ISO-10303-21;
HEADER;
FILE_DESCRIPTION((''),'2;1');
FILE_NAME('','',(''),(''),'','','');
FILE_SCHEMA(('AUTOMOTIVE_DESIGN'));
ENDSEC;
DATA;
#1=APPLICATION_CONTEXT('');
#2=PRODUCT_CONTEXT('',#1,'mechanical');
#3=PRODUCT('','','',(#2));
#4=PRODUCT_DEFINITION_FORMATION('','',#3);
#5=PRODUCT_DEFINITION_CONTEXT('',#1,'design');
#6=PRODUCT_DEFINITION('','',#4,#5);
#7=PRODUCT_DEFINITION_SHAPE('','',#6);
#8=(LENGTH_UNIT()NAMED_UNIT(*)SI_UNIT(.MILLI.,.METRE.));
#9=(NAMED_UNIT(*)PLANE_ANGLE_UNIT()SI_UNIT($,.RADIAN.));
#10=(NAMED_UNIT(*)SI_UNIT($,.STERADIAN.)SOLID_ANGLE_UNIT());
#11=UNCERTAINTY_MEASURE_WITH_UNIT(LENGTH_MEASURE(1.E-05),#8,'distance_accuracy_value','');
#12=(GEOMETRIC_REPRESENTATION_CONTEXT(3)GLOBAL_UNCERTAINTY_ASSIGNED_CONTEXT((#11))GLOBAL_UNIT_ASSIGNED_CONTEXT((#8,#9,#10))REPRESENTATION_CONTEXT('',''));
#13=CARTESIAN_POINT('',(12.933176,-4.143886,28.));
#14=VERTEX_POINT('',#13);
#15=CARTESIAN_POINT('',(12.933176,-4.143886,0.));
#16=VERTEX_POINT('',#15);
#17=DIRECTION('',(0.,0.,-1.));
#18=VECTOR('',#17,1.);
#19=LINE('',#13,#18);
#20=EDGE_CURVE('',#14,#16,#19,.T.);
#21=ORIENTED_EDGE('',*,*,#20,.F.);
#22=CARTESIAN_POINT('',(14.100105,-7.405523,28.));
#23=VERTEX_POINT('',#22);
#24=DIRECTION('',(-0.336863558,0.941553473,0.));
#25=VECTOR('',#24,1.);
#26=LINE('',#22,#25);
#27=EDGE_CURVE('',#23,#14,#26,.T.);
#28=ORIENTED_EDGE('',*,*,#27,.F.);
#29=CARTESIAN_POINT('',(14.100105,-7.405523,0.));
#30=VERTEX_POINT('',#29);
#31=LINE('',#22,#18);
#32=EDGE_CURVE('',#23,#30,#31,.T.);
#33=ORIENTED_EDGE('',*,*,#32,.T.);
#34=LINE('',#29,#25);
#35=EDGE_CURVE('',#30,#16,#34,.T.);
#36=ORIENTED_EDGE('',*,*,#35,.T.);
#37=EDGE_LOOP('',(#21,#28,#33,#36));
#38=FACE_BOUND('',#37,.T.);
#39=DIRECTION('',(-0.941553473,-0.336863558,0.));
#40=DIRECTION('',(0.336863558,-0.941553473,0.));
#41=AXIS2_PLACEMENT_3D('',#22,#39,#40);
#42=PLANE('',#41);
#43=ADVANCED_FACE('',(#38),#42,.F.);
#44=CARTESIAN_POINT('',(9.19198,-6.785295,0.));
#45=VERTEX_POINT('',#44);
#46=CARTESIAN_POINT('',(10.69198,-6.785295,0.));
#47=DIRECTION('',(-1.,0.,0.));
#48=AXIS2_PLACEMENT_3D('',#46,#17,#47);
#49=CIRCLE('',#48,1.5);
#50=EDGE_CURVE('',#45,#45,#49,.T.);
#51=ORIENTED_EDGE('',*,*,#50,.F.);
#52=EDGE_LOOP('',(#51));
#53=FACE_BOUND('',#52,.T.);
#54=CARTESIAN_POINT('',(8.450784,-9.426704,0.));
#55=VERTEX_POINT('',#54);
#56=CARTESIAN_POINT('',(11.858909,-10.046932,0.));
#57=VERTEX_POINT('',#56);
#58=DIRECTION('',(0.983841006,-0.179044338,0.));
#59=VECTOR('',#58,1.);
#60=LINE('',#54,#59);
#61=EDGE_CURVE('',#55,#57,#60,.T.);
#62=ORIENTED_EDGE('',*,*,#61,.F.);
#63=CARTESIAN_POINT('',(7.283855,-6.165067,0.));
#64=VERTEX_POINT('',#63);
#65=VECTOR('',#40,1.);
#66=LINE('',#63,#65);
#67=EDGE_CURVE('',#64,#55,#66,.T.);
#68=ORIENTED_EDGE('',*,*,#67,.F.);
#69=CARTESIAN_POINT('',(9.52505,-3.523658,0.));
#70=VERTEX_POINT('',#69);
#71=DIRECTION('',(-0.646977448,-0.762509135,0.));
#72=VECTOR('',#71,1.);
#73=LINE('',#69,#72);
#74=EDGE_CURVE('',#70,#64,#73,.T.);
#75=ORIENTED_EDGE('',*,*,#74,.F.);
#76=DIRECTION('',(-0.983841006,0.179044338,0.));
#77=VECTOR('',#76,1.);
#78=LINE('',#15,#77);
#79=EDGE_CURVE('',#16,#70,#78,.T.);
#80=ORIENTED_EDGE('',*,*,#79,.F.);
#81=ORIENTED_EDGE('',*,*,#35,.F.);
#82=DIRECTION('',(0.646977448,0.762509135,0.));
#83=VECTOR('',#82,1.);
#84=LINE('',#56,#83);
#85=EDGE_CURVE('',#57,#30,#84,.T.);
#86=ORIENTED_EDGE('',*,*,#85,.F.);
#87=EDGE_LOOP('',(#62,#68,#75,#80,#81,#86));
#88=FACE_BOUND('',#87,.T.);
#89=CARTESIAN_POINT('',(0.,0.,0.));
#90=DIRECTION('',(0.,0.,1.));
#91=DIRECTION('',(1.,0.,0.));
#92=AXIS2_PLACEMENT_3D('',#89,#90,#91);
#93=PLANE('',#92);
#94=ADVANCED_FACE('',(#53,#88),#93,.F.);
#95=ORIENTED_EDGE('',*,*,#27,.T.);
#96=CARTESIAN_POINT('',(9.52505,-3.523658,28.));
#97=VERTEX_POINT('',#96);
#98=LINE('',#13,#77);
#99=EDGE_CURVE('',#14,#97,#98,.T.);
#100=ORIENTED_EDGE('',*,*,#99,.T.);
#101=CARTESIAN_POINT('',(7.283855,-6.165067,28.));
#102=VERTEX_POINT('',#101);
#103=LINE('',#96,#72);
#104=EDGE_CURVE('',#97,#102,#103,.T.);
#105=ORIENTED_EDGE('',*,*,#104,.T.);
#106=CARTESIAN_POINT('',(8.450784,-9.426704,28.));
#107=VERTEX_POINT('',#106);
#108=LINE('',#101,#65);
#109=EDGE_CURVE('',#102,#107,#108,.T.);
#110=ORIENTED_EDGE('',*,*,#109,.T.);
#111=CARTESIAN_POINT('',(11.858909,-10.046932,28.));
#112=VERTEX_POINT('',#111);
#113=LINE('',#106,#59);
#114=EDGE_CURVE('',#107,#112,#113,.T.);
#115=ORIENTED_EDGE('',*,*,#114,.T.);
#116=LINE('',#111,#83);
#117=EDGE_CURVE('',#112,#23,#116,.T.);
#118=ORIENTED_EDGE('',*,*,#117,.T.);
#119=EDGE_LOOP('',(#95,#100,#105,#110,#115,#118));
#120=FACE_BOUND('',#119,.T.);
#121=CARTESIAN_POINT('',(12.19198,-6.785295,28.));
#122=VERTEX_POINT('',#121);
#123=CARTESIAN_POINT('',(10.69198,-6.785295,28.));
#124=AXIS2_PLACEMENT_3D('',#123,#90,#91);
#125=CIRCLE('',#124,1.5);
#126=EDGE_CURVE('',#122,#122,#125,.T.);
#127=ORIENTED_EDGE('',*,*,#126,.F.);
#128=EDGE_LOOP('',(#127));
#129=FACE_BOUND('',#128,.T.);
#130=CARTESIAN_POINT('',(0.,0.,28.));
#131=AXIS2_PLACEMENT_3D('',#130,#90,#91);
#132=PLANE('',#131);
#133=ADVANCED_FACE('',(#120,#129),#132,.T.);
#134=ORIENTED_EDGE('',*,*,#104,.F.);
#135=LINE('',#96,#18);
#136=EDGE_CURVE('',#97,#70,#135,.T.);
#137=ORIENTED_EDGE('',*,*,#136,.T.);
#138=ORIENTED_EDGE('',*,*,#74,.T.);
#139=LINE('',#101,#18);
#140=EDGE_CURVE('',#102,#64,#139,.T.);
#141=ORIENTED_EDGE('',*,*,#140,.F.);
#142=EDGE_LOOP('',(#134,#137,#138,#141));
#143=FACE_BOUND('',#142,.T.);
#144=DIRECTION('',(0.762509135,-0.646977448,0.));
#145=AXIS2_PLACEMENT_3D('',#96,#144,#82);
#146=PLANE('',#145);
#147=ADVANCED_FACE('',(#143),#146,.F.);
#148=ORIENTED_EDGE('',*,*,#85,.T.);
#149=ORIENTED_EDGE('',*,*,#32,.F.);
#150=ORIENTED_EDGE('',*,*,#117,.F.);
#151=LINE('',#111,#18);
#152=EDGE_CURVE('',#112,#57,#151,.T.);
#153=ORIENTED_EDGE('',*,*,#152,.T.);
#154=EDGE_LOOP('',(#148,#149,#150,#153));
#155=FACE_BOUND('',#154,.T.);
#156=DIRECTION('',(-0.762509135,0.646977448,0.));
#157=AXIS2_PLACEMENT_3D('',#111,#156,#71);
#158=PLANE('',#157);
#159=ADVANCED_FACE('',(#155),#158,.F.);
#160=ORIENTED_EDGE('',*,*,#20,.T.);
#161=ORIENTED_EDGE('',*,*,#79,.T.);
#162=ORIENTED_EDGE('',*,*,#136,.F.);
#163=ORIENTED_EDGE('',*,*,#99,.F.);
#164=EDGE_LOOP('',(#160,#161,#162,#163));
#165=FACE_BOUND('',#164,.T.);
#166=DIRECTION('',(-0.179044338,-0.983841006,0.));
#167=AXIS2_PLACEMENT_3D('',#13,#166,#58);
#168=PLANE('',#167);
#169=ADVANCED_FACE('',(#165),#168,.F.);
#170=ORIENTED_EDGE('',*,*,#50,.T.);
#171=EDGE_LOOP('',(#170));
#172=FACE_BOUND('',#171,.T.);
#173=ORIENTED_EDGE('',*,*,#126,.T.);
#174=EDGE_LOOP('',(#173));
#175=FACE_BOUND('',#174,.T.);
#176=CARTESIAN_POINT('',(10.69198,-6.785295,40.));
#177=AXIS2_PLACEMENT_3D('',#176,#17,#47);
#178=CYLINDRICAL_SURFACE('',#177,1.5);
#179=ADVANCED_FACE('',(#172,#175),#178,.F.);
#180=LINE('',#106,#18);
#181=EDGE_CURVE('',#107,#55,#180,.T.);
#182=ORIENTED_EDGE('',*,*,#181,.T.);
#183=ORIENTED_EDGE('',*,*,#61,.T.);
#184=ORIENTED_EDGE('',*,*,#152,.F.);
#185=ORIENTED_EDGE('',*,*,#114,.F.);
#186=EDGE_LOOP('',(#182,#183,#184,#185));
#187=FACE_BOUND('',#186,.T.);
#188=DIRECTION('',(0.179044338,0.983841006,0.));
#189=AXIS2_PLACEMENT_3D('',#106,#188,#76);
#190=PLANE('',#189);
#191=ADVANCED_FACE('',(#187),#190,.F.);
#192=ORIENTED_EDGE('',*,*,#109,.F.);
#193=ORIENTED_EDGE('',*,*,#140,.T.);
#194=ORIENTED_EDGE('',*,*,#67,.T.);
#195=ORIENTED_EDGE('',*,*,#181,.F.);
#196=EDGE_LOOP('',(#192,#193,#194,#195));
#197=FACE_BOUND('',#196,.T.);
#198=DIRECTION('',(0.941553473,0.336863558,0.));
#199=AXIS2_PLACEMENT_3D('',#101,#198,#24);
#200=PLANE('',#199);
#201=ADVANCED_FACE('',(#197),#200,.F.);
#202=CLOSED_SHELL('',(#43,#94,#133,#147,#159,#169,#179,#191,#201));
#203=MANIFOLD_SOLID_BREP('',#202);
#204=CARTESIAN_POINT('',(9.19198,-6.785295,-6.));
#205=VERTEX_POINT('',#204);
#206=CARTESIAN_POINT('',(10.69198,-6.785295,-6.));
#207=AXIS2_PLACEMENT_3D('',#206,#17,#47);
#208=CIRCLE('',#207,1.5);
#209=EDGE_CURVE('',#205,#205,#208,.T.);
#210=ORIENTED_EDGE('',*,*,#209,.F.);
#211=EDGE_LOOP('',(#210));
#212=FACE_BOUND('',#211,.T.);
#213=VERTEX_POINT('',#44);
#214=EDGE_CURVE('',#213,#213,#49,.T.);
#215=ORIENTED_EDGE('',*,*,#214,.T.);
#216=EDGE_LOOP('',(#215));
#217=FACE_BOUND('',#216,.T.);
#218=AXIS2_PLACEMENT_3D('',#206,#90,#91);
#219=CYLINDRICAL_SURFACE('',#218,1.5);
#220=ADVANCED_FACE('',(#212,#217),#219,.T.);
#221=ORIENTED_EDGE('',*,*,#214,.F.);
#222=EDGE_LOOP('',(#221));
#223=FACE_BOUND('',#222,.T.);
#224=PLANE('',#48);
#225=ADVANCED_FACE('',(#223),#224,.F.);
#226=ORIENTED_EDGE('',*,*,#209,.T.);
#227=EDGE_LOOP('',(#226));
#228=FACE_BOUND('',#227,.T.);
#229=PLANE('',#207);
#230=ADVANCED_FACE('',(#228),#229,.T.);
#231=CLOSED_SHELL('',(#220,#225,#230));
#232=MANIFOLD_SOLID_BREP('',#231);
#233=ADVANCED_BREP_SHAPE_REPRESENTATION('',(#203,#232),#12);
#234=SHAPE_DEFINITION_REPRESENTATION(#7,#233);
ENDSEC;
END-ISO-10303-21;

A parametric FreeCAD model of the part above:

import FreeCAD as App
import Part
import Sketcher

V = App.Vector
Q = App.Units.Quantity


def add_polygon(sketch, points):
    """Adds a closed chain of lines whose ends are joined by coincident constraints."""
    first, n = sketch.GeometryCount, len(points)
    for a, b in zip(points, points[1:] + points[:1]):
        sketch.addGeometry(Part.LineSegment(App.Vector(*a, 0), App.Vector(*b, 0)), False)
    for i in range(n):
        sketch.addConstraint(Sketcher.Constraint("Coincident", first + i, 2, first + (i + 1) % n, 1))

doc = App.newDocument("Part")
body = doc.addObject("PartDesign::Body", "Body")

# Sketch on XY plane
sketch1 = body.newObject("Sketcher::SketchObject", "Sketch")
sketch1.AttachmentSupport = (doc.getObject("XY_Plane"), [""])
sketch1.MapMode = "FlatFace"
add_polygon(sketch1, [(12.9, -4.1), (9.5, -3.5), (7.3, -6.2), (8.5, -9.4), (11.9, -10), (14.1, -7.4)])  # lines 0-5
sketch1.addConstraint([
    Sketcher.Constraint("Parallel", 0, 3),
    Sketcher.Constraint("Parallel", 1, 4),
    Sketcher.Constraint("Parallel", 2, 5),
    Sketcher.Constraint("Equal", 0, 1),
    Sketcher.Constraint("Equal", 1, 2),
    Sketcher.Constraint("Equal", 2, 3),
    Sketcher.Constraint("Distance", 0, Q("3.464102 mm")),
    Sketcher.Constraint("DistanceX", -1, 1, 0, 2, Q("9.52505 mm")),
    Sketcher.Constraint("DistanceY", 0, 2, -1, 1, Q("3.523658 mm")),
    Sketcher.Constraint("DistanceX", -1, 1, 3, 2, Q("11.858909 mm")),
    Sketcher.Constraint("DistanceY", 3, 2, -1, 1, Q("10.046932 mm")),
    Sketcher.Constraint("DistanceY", 1, 2, 0, 2, Q("2.641409 mm")),
])
pad1 = body.newObject("PartDesign::Pad", "Pad")
pad1.Profile = sketch1
pad1.Length = 28

# Sketch on XY plane
sketch2 = body.newObject("Sketcher::SketchObject", "Sketch001")
sketch2.AttachmentSupport = (doc.getObject("XY_Plane"), [""])
sketch2.MapMode = "FlatFace"
sketch2.addGeometry(Part.Circle(V(10.7, -6.8, 0), V(0, 0, 1), 1.5), False)
sketch2.addConstraint([
    Sketcher.Constraint("Diameter", 0, Q("3 mm")),
    Sketcher.Constraint("DistanceX", -1, 1, 0, 3, Q("10.69198 mm")),
    Sketcher.Constraint("DistanceY", 0, 3, -1, 1, Q("6.785295 mm")),
])
pocket1 = body.newObject("PartDesign::Pocket", "Pocket")
pocket1.Profile = sketch2
pocket1.Length = 40
pocket1.Reversed = True
body2 = doc.addObject("PartDesign::Body", "Body001")

# Sketch on XY plane
sketch3 = body2.newObject("Sketcher::SketchObject", "Sketch002")
sketch3.AttachmentSupport = (doc.getObject("XY_Plane001"), [""])
sketch3.MapMode = "FlatFace"
sketch3.addGeometry(Part.Circle(V(10.7, -6.8, 0), V(0, 0, 1), 1.5), False)
sketch3.addConstraint([
    Sketcher.Constraint("Diameter", 0, Q("3 mm")),
    Sketcher.Constraint("DistanceX", -1, 1, 0, 3, Q("10.69198 mm")),
    Sketcher.Constraint("DistanceY", 0, 3, -1, 1, Q("6.785295 mm")),
])
pad2 = body2.newObject("PartDesign::Pad", "Pad001")
pad2.Profile = sketch3
pad2.Length = 6
pad2.Reversed = True

doc.recompute()
